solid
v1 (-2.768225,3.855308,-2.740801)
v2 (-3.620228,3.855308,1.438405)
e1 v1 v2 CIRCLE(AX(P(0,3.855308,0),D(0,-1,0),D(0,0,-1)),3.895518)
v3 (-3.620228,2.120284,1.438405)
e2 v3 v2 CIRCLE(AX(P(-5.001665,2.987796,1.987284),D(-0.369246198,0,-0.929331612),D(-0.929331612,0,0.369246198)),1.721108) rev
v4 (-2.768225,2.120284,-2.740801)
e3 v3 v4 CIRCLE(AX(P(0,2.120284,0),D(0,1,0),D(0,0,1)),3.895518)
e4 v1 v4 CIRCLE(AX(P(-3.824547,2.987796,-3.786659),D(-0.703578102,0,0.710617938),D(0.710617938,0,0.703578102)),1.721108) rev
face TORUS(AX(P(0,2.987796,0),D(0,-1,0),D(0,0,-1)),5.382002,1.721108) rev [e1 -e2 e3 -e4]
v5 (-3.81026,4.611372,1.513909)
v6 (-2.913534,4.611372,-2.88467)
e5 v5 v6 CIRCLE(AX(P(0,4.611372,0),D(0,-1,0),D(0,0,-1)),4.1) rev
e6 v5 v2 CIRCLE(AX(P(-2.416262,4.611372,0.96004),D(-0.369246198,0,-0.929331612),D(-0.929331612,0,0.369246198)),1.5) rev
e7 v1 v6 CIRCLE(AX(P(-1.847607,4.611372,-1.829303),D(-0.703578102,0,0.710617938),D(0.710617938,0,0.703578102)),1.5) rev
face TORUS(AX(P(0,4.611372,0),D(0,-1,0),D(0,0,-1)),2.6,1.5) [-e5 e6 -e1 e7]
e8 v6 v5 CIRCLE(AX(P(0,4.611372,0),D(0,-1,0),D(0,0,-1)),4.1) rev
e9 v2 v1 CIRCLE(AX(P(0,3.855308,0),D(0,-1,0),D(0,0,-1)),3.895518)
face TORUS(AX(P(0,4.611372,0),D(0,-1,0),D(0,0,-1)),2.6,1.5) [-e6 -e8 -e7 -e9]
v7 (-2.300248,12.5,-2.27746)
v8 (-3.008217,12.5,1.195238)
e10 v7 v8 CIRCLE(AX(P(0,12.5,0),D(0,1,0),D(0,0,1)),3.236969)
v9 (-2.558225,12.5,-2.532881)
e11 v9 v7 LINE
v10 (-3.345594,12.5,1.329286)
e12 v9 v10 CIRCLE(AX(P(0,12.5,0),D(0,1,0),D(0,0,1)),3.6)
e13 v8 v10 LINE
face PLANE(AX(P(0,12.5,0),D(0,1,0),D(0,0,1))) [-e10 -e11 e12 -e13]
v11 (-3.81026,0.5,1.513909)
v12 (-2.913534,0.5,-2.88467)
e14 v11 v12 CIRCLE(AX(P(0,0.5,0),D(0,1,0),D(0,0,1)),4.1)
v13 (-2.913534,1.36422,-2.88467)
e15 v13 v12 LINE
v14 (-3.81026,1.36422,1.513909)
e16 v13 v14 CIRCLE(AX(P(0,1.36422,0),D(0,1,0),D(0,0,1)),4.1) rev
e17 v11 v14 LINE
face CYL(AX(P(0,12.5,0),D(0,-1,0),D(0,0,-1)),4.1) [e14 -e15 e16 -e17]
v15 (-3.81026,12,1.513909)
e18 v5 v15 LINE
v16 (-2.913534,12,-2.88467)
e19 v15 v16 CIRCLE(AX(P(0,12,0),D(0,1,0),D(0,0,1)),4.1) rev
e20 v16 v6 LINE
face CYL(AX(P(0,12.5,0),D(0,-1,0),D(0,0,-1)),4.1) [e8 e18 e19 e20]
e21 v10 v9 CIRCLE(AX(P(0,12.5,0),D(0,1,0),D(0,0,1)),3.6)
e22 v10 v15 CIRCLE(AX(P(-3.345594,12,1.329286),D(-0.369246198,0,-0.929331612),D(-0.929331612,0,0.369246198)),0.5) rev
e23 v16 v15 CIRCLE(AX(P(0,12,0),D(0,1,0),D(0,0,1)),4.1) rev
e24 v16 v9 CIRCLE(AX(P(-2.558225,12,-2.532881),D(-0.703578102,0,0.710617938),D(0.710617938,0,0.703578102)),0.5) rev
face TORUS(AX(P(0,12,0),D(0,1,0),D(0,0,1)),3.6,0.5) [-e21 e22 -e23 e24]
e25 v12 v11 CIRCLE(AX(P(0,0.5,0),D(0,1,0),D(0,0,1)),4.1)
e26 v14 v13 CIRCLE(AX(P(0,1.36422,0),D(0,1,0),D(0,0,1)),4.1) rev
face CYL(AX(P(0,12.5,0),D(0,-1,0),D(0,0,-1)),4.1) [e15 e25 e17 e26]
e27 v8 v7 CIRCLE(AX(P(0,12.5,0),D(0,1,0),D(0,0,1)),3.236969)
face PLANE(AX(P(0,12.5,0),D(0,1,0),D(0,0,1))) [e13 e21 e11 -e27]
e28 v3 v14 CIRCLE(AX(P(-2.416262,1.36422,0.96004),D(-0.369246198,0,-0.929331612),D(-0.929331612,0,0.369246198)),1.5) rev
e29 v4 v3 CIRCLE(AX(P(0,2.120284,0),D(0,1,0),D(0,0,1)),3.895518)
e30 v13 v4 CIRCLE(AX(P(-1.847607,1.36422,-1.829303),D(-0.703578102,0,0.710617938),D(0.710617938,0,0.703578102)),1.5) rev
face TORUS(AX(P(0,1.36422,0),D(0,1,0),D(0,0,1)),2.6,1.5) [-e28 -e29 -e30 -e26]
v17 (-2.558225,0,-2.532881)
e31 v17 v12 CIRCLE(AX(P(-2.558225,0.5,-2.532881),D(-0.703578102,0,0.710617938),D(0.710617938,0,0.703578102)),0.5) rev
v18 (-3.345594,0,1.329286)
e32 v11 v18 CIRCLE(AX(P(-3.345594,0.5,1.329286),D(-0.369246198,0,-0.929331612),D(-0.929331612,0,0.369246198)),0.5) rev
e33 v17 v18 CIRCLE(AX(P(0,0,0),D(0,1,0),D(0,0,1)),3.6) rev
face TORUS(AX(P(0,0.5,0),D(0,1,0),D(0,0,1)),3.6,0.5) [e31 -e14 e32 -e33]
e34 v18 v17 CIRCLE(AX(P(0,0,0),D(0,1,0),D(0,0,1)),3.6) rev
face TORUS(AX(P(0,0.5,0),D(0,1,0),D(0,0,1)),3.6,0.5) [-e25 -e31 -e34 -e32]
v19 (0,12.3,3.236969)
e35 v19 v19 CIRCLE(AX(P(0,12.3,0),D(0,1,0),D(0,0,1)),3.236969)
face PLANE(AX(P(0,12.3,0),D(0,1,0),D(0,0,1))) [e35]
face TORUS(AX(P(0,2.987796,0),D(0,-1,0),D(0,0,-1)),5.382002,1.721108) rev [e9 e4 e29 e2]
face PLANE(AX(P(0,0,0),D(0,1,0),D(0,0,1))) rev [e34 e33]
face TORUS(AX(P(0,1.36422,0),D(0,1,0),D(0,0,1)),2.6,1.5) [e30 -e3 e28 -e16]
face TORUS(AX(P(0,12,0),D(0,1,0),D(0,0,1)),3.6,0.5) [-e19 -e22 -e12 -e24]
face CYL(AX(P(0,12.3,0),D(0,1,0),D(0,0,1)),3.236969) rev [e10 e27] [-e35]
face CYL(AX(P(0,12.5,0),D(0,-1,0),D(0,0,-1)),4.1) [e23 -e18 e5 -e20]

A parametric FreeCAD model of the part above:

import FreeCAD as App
import Part
import Sketcher

V = App.Vector
Q = App.Units.Quantity


def edges_at(feature, points):
    """Names of the edges that pass closest to the given points."""
    edges = feature.Shape.Edges
    near = lambda p: min(range(len(edges)), key=lambda i: edges[i].distToShape(Part.Vertex(*p))[0])
    return sorted({f"Edge{near(p) + 1}" for p in points})

doc = App.newDocument("Part")
body = doc.addObject("PartDesign::Body", "Body")

# Sketch on XZ plane
sketch1 = body.newObject("Sketcher::SketchObject", "Sketch")
sketch1.AttachmentSupport = (doc.getObject("XZ_Plane"), [""])
sketch1.MapMode = "FlatFace"
sketch1.addGeometry(Part.Circle(V(0, 0, 0), V(0, 0, 1), 4.1), False)
sketch1.addConstraint(Sketcher.Constraint("Coincident", 0, 3, -1, 1))
sketch1.addConstraint(Sketcher.Constraint("Diameter", 0, Q("8.2 mm")))
pad1 = body.newObject("PartDesign::Pad", "Pad")
pad1.Profile = sketch1
pad1.Length = 12.5
pad1.Reversed = True

# Sketch on YZ plane
sketch2 = body.newObject("Sketcher::SketchObject", "Sketch001")
sketch2.AttachmentSupport = (doc.getObject("YZ_Plane"), [""])
sketch2.MapMode = "FlatFace"
sketch2.addGeometry(Part.Circle(V(2.987796, -5.382002, 0), V(0, 0, 1), 1.721108), False)
sketch2.addConstraint(Sketcher.Constraint("Diameter", 0, Q("3.442215 mm")))
sketch2.addConstraint(Sketcher.Constraint("DistanceX", -1, 1, 0, 3, Q("2.987796 mm")))
sketch2.addConstraint(Sketcher.Constraint("DistanceY", 0, 3, -1, 1, Q("5.382002 mm")))
groove = body.newObject("PartDesign::Groove", "Groove")
groove.Profile = sketch2
groove.ReferenceAxis = (sketch2, ["H_Axis"])
groove.Angle = 360
doc.recompute()

fillet = body.newObject("PartDesign::Fillet", "Fillet")
fillet.Base = (groove, edges_at(groove, [(-4.1, 0, 0), (-4.1, 12.5, 0)]))
fillet.Radius = 0.5
doc.recompute()

fillet2 = body.newObject("PartDesign::Fillet", "Fillet001")
fillet2.Base = (fillet, edges_at(fillet, [(2.899, 4.136, -2.899), (-2.899, 1.839, 2.899)]))
fillet2.Radius = 1.5

# Sketch on XZ plane
sketch3 = body.newObject("Sketcher::SketchObject", "Sketch002")
sketch3.AttachmentSupport = (doc.getObject("XZ_Plane"), [""])
sketch3.MapMode = "FlatFace"
sketch3.AttachmentOffset = App.Placement(V(0, 0, -12.5), App.Rotation())
sketch3.addGeometry(Part.Circle(V(0, 0, 0), V(0, 0, 1), 3.236969), False)
sketch3.addConstraint(Sketcher.Constraint("Coincident", 0, 3, -1, 1))
sketch3.addConstraint(Sketcher.Constraint("Diameter", 0, Q("6.473938 mm")))
pocket1 = body.newObject("PartDesign::Pocket", "Pocket")
pocket1.Profile = sketch3
pocket1.Length = 0.2
pocket1.Reversed = True

doc.recompute()
